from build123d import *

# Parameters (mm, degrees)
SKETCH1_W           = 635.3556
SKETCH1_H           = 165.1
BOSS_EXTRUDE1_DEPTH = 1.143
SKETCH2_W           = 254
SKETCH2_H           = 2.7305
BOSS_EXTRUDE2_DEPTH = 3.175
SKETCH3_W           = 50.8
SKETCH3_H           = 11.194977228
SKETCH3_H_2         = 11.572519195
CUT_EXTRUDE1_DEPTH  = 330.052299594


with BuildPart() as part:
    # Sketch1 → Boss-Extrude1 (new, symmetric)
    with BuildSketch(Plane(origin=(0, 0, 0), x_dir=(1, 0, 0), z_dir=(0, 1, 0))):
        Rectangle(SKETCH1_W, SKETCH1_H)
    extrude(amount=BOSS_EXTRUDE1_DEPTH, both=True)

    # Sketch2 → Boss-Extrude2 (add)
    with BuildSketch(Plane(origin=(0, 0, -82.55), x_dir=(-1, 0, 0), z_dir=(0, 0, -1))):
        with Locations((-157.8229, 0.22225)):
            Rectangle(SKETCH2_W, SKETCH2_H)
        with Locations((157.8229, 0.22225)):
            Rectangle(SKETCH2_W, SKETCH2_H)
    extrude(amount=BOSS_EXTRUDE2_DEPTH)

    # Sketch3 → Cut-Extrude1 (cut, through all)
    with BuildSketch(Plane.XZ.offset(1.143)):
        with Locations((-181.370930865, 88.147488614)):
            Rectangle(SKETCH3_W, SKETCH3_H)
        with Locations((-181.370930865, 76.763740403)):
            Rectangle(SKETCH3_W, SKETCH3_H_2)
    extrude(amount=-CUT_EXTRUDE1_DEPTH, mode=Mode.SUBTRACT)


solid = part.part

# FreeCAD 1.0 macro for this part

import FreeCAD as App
import Part
import Sketcher
Q = App.Units.Quantity

doc = App.newDocument("Part")
params = doc.addObject("Spreadsheet::Sheet", "Params")
for row, (alias, value) in enumerate([
    ("sketch1_height", "6.5 in"),
    ("sketch1_width", "25.014 in"),
    ("pad1_length", "0.09 in"),
    ("sketch2_width", "10 in"),
    ("pad2_length", "0.125 in"),
    ("sketch3_width", "2 in"),
], start=1):
    params.set(f"A{row}", alias)
    params.set(f"B{row}", "=" + value)
    params.setAlias(f"B{row}", alias)

body = doc.addObject("PartDesign::Body", "Body")

# Sketch on XZ plane
sketch1 = body.newObject("Sketcher::SketchObject", "Sketch")
sketch1.AttachmentSupport = (doc.getObject("XZ_Plane"), [""])
sketch1.MapMode = "FlatFace"
sketch1.addGeometry([
    Part.LineSegment(App.Vector(-318, -83, 0), App.Vector(-318, 83, 0)),
    Part.LineSegment(App.Vector(-318, 83, 0), App.Vector(318, 83, 0)),
    Part.LineSegment(App.Vector(318, 83, 0), App.Vector(318, -83, 0)),
    Part.LineSegment(App.Vector(318, -83, 0), App.Vector(-318, -83, 0)),
], False)
sketch1.addConstraint([
    Sketcher.Constraint("Coincident", 0, 2, 1, 1),
    Sketcher.Constraint("Coincident", 1, 2, 2, 1),
    Sketcher.Constraint("Coincident", 2, 2, 3, 1),
    Sketcher.Constraint("Coincident", 3, 2, 0, 1),
    Sketcher.Constraint("Vertical", 0),
    Sketcher.Constraint("Horizontal", 1),
    Sketcher.Constraint("Vertical", 2),
    Sketcher.Constraint("Horizontal", 3),
    Sketcher.Constraint("Symmetric", 0, 2, 2, 2, -1, 1),
    Sketcher.Constraint("DistanceY", 0, 1, 0, 2, Q("6.5 in")),
    Sketcher.Constraint("DistanceX", 1, 1, 1, 2, Q("25.014 in")),
])
sketch1.setExpression("Constraints[9]", "Params.sketch1_height")
sketch1.setExpression("Constraints[10]", "Params.sketch1_width")
pad1 = body.newObject("PartDesign::Pad", "Pad")
pad1.Profile = sketch1
pad1.setExpression("Length", "Params.pad1_length")
pad1.Midplane = True

# Sketch on XY plane
sketch2 = body.newObject("Sketcher::SketchObject", "Sketch001")
sketch2.AttachmentSupport = (doc.getObject("XY_Plane"), [""])
sketch2.MapMode = "FlatFace"
sketch2.AttachmentOffset = App.Placement(App.Vector(0, 0, -3.25 * 25.4), App.Rotation())
sketch2.addGeometry([
    Part.LineSegment(App.Vector(284.8, 1.6, 0), App.Vector(284.8, -1.1, 0)),  # 0
    Part.LineSegment(App.Vector(284.8, -1.1, 0), App.Vector(30.8, -1.1, 0)),  # 1
    Part.LineSegment(App.Vector(30.8, -1.1, 0), App.Vector(30.8, 1.6, 0)),  # 2
    Part.LineSegment(App.Vector(30.8, 1.6, 0), App.Vector(284.8, 1.6, 0)),  # 3
    Part.LineSegment(App.Vector(-30.8, 1.6, 0), App.Vector(-30.8, -1.1, 0)),  # 4
    Part.LineSegment(App.Vector(-30.8, -1.1, 0), App.Vector(-284.8, -1.1, 0)),  # 5
    Part.LineSegment(App.Vector(-284.8, -1.1, 0), App.Vector(-284.8, 1.6, 0)),  # 6
    Part.LineSegment(App.Vector(-284.8, 1.6, 0), App.Vector(-30.8, 1.6, 0)),  # 7
], False)
sketch2.addConstraint([
    Sketcher.Constraint("Coincident", 0, 2, 1, 1),
    Sketcher.Constraint("Coincident", 1, 2, 2, 1),
    Sketcher.Constraint("Coincident", 2, 2, 3, 1),
    Sketcher.Constraint("Coincident", 3, 2, 0, 1),
    Sketcher.Constraint("Coincident", 4, 2, 5, 1),
    Sketcher.Constraint("Coincident", 5, 2, 6, 1),
    Sketcher.Constraint("Coincident", 6, 2, 7, 1),
    Sketcher.Constraint("Coincident", 7, 2, 4, 1),
    Sketcher.Constraint("Vertical", 0),
    Sketcher.Constraint("Horizontal", 1),
    Sketcher.Constraint("Vertical", 2),
    Sketcher.Constraint("Horizontal", 3),
    Sketcher.Constraint("Vertical", 4),
    Sketcher.Constraint("Horizontal", 5),
    Sketcher.Constraint("Vertical", 6),
    Sketcher.Constraint("Horizontal", 7),
    Sketcher.Constraint("Symmetric", 1, 2, 4, 2, -2),
    Sketcher.Constraint("Symmetric", 3, 2, 6, 2, -2),
    Sketcher.Constraint("DistanceX", 1, 2, 1, 1, Q("10 in")),
    Sketcher.Constraint("DistanceY", 0, 2, 0, 1, Q("0.1075 in")),
    Sketcher.Constraint("DistanceY", 0, 2, -1, 1, Q("0.045 in")),
    Sketcher.Constraint("DistanceX", 4, 2, 1, 2, Q("2.427 in")),
])
sketch2.setExpression("Constraints[18]", "Params.sketch2_width")
pad2 = body.newObject("PartDesign::Pad", "Pad001")
pad2.Profile = sketch2
pad2.setExpression("Length", "Params.pad2_length")
pad2.Reversed = True

# Sketch on XZ plane
sketch3 = body.newObject("Sketcher::SketchObject", "Sketch002")
sketch3.AttachmentSupport = (doc.getObject("XZ_Plane"), [""])
sketch3.MapMode = "FlatFace"
sketch3.AttachmentOffset = App.Placement(App.Vector(0, 0, 0.045 * 25.4), App.Rotation())
sketch3.addGeometry([
    Part.LineSegment(App.Vector(-207, 94, 0), App.Vector(-207, 71, 0)),
    Part.LineSegment(App.Vector(-207, 71, 0), App.Vector(-156, 71, 0)),
    Part.LineSegment(App.Vector(-156, 71, 0), App.Vector(-156, 94, 0)),
    Part.LineSegment(App.Vector(-156, 94, 0), App.Vector(-207, 94, 0)),
], False)
sketch3.addConstraint([
    Sketcher.Constraint("Coincident", 0, 2, 1, 1),
    Sketcher.Constraint("Coincident", 1, 2, 2, 1),
    Sketcher.Constraint("Coincident", 2, 2, 3, 1),
    Sketcher.Constraint("Coincident", 3, 2, 0, 1),
    Sketcher.Constraint("Vertical", 0),
    Sketcher.Constraint("Horizontal", 1),
    Sketcher.Constraint("Vertical", 2),
    Sketcher.Constraint("Horizontal", 3),
    Sketcher.Constraint("DistanceX", 1, 1, 1, 2, Q("2 in")),
    Sketcher.Constraint("DistanceY", 0, 2, 0, 1, Q("22.767496 mm")),
    Sketcher.Constraint("DistanceX", 0, 2, -1, 1, Q("206.770931 mm")),
    Sketcher.Constraint("DistanceY", -1, 1, 0, 2, Q("70.977481 mm")),
])
sketch3.setExpression("Constraints[8]", "Params.sketch3_width")
pocket1 = body.newObject("PartDesign::Pocket", "Pocket")
pocket1.Profile = sketch3
pocket1.Type = "ThroughAll"

doc.recompute()
